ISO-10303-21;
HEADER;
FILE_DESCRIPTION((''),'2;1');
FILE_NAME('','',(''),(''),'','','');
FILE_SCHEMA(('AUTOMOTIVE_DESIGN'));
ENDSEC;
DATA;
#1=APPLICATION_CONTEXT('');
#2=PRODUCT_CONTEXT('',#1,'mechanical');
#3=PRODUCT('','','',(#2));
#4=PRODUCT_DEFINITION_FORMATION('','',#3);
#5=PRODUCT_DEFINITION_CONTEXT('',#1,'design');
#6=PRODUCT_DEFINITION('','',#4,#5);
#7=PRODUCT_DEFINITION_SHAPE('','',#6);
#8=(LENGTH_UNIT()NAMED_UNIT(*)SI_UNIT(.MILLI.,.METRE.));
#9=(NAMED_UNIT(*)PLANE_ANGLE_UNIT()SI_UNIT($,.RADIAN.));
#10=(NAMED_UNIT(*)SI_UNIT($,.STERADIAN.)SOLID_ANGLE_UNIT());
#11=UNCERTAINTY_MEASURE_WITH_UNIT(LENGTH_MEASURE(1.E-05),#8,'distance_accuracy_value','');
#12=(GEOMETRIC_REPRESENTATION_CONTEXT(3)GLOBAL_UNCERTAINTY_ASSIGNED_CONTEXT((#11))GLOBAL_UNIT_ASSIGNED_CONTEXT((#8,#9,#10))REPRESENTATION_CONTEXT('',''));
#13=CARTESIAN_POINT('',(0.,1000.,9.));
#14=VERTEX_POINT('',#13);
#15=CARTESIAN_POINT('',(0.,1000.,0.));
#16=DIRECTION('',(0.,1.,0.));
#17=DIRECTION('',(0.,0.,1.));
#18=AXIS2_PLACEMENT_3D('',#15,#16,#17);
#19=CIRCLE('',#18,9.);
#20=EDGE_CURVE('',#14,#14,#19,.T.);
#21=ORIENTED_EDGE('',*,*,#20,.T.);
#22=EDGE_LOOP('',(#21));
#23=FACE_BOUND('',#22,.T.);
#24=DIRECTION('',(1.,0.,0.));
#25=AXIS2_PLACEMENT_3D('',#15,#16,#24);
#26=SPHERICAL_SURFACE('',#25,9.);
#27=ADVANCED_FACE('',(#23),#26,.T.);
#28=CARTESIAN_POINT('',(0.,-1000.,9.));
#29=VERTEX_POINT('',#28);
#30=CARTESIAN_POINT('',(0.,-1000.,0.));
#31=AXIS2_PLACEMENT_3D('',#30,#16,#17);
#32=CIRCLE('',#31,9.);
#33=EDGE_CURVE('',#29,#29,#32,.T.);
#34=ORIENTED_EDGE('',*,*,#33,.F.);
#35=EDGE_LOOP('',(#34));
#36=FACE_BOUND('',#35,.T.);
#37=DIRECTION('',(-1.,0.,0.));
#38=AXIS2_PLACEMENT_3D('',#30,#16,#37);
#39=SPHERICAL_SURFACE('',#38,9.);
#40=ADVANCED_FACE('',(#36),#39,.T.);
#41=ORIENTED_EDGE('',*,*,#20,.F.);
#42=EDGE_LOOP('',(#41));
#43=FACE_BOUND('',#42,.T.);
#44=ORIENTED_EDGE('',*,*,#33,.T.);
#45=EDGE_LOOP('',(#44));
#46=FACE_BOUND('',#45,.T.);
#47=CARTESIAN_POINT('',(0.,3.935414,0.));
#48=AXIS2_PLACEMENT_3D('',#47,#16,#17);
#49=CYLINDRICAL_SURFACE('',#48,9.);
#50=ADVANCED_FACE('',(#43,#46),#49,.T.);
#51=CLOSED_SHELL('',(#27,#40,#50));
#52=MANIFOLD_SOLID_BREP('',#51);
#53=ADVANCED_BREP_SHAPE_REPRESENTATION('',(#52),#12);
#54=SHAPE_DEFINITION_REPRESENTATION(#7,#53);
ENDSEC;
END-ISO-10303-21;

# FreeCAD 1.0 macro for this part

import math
import FreeCAD as App
import Part
import Sketcher

doc = App.newDocument("Part")
params = doc.addObject("Spreadsheet::Sheet", "Params")
for row, (alias, value) in enumerate([
    ("sketch1_radius", "9 mm"),
    ("sketch1_height", "2000 mm"),
    ("revolution_angle", "360 deg"),
], start=1):
    params.set(f"A{row}", alias)
    params.set(f"B{row}", "=" + value)
    params.setAlias(f"B{row}", alias)

body = doc.addObject("PartDesign::Body", "Body")

# Sketch on XY plane
sketch1 = body.newObject("Sketcher::SketchObject", "Sketch")
sketch1.AttachmentSupport = (doc.getObject("XY_Plane"), [""])
sketch1.MapMode = "FlatFace"
sketch1.addGeometry([
    Part.LineSegment(App.Vector(-9, 1000, 0), App.Vector(-9, -1000, 0)),
    Part.ArcOfCircle(Part.Circle(App.Vector(0, -1000, 0), App.Vector(0, 0, 1), 9), math.radians(180), math.radians(270)),
    Part.LineSegment(App.Vector(0, -1009, 0), App.Vector(0, 1009, 0)),
    Part.ArcOfCircle(Part.Circle(App.Vector(0, 1000, 0), App.Vector(0, 0, 1), 9), math.radians(90), math.radians(180)),
], False)
sketch1.addConstraint([
    Sketcher.Constraint("Tangent", 0, 2, 1, 1),
    Sketcher.Constraint("Coincident", 1, 2, 2, 1),
    Sketcher.Constraint("Coincident", 2, 2, 3, 1),
    Sketcher.Constraint("Tangent", 3, 2, 0, 1),
    Sketcher.Constraint("Vertical", 0),
    Sketcher.Constraint("Vertical", 2),
    Sketcher.Constraint("Equal", 1, 3),
    Sketcher.Constraint("Symmetric", 1, 3, 3, 3, -1, 1),
    Sketcher.Constraint("PointOnObject", 1, 2, -2),
    Sketcher.Constraint("Radius", 1, 9.0),
    Sketcher.Constraint("DistanceY", 0, 2, 0, 1, 2000.0),
])
sketch1.setExpression("Constraints[9]", "Params.sketch1_radius")
sketch1.setExpression("Constraints[10]", "Params.sketch1_height")
revolution = body.newObject("PartDesign::Revolution", "Revolution")
revolution.Profile = sketch1
revolution.ReferenceAxis = (sketch1, ["V_Axis"])
revolution.setExpression("Angle", "Params.revolution_angle")

doc.recompute()
